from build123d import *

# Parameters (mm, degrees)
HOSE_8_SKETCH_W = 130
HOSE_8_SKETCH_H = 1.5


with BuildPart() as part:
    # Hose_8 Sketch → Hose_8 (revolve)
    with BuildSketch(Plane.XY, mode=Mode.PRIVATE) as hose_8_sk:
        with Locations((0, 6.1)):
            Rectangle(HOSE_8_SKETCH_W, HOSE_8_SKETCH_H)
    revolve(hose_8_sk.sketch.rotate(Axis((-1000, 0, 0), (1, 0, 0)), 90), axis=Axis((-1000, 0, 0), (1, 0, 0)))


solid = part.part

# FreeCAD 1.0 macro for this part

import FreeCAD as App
import Part
import Sketcher
from FreeCAD import Vector


def add_polygon(sketch, points):
    """Adds a closed chain of lines whose ends are joined by coincident constraints."""
    first, n = sketch.GeometryCount, len(points)
    for a, b in zip(points, points[1:] + points[:1]):
        sketch.addGeometry(Part.LineSegment(App.Vector(*a, 0), App.Vector(*b, 0)), False)
    for i in range(n):
        sketch.addConstraint(Sketcher.Constraint("Coincident", first + i, 2, first + (i + 1) % n, 1))

doc = App.newDocument("Part")
body = doc.addObject("PartDesign::Body", "Body")

sketch1 = body.newObject("Sketcher::SketchObject", "Sketch")
sketch1.AttachmentSupport = (doc.getObject("XY_Plane"), [""])
sketch1.MapMode = "FlatFace"
add_polygon(sketch1, [(-65, 6.8), (-65, 5.3), (65, 5.3), (65, 6.8)])
sketch1.addConstraint(Sketcher.Constraint("Vertical", 0))
sketch1.addConstraint(Sketcher.Constraint("Horizontal", 1))
sketch1.addConstraint(Sketcher.Constraint("Vertical", 2))
sketch1.addConstraint(Sketcher.Constraint("Horizontal", 3))
sketch1.addConstraint(Sketcher.Constraint("DistanceX", 1, 1, 1, 2, 130.0))
sketch1.addConstraint(Sketcher.Constraint("DistanceY", 0, 2, 0, 1, 1.5))
sketch1.addConstraint(Sketcher.Constraint("DistanceX", 0, 2, -1, 1, 65.0))
sketch1.addConstraint(Sketcher.Constraint("DistanceY", -1, 1, 0, 2, 5.35))
revolution = body.newObject("PartDesign::Revolution", "Revolution")
revolution.Profile = sketch1
revolution.ReferenceAxis = (sketch1, ["H_Axis"])
revolution.Angle = 360

doc.recompute()
